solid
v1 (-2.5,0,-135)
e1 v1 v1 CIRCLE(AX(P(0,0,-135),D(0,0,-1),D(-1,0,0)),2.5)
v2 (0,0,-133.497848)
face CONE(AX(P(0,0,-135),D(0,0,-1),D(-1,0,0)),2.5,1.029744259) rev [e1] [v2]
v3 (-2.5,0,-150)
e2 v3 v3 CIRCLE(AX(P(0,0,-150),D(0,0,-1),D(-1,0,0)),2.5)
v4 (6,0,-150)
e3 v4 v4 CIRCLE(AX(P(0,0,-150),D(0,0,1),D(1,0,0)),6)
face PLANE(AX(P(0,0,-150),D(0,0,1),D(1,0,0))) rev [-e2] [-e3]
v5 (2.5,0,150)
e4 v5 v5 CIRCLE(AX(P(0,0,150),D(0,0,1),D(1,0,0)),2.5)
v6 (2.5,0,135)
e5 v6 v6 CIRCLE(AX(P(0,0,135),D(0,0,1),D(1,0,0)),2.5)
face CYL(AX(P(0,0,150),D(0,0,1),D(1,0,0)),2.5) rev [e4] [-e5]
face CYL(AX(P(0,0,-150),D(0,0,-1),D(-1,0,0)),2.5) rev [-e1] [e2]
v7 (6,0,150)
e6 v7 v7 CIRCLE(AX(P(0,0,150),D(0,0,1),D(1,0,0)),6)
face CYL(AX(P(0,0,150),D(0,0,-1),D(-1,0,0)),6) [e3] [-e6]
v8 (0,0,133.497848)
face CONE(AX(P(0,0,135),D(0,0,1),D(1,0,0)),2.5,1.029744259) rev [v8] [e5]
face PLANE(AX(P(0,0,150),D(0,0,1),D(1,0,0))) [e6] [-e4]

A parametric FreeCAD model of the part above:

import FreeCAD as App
import Part
import Sketcher

V = App.Vector
Q = App.Units.Quantity

doc = App.newDocument("Part")
params = doc.addObject("Spreadsheet::Sheet", "Params")
for row, (alias, value) in enumerate([
    ("sketch1_diameter", "12 mm"),
    ("pad1_length", "300 mm"),
    ("sketch2_diameter", "5 mm"),
    ("hole_diameter", "5 mm"),
    ("hole_depth", "15 mm"),
    ("sketch3_diameter", "5 mm"),
    ("hole2_diameter", "5 mm"),
    ("hole2_depth", "15 mm"),
], start=1):
    params.set(f"A{row}", alias)
    params.set(f"B{row}", "=" + value)
    params.setAlias(f"B{row}", alias)

body = doc.addObject("PartDesign::Body", "Body")

# Sketch on XY plane
sketch1 = doc.addObject("Sketcher::SketchObject", "Sketch")
body.addObject(sketch1)
sketch1.AttachmentSupport = (doc.XY_Plane, [""])
sketch1.MapMode = "FlatFace"
sketch1.addGeometry(Part.Circle(V(0, 0, 0), V(0, 0, 1), 6), False)
sketch1.addConstraint(Sketcher.Constraint("Coincident", 0, 3, -1, 1))
sketch1.addConstraint(Sketcher.Constraint("Diameter", 0, Q("12 mm")))
sketch1.setExpression("Constraints[1]", "Params.sketch1_diameter")
pad1 = doc.addObject("PartDesign::Pad", "Pad")
body.addObject(pad1)
pad1.Profile = sketch1
pad1.setExpression("Length", "Params.pad1_length")
pad1.Midplane = True

# Sketch on XY plane
sketch2 = doc.addObject("Sketcher::SketchObject", "Sketch001")
body.addObject(sketch2)
sketch2.AttachmentSupport = (doc.XY_Plane, [""])
sketch2.MapMode = "FlatFace"
sketch2.AttachmentOffset = App.Placement(V(0, 0, -150), App.Rotation())
sketch2.addGeometry(Part.Circle(V(0, 0, 0), V(0, 0, 1), 2.5), False)
sketch2.addConstraint(Sketcher.Constraint("Coincident", 0, 3, -1, 1))
sketch2.addConstraint(Sketcher.Constraint("Diameter", 0, Q("5 mm")))
sketch2.setExpression("Constraints[1]", "Params.sketch2_diameter")
doc.recompute()
hole = doc.addObject("PartDesign::Hole", "Hole")
body.addObject(hole)
hole.Profile = sketch2
hole.ThreadType = "None"
hole.setExpression("Diameter", "Params.hole_diameter")
hole.DepthType = "Dimension"
hole.setExpression("Depth", "Params.hole_depth")
hole.DrillPoint = "Angled"
hole.DrillPointAngle = 118
hole.Reversed = True

# Sketch on XY plane
sketch3 = doc.addObject("Sketcher::SketchObject", "Sketch002")
body.addObject(sketch3)
sketch3.AttachmentSupport = (doc.XY_Plane, [""])
sketch3.MapMode = "FlatFace"
sketch3.AttachmentOffset = App.Placement(V(0, 0, 150), App.Rotation())
sketch3.addGeometry(Part.Circle(V(0, 0, 0), V(0, 0, 1), 2.5), False)
sketch3.addConstraint(Sketcher.Constraint("Coincident", 0, 3, -1, 1))
sketch3.addConstraint(Sketcher.Constraint("Diameter", 0, Q("5 mm")))
sketch3.setExpression("Constraints[1]", "Params.sketch3_diameter")
doc.recompute()
hole2 = doc.addObject("PartDesign::Hole", "Hole001")
body.addObject(hole2)
hole2.Profile = sketch3
hole2.ThreadType = "None"
hole2.setExpression("Diameter", "Params.hole2_diameter")
hole2.DepthType = "Dimension"
hole2.setExpression("Depth", "Params.hole2_depth")
hole2.DrillPoint = "Angled"
hole2.DrillPointAngle = 118

doc.recompute()
